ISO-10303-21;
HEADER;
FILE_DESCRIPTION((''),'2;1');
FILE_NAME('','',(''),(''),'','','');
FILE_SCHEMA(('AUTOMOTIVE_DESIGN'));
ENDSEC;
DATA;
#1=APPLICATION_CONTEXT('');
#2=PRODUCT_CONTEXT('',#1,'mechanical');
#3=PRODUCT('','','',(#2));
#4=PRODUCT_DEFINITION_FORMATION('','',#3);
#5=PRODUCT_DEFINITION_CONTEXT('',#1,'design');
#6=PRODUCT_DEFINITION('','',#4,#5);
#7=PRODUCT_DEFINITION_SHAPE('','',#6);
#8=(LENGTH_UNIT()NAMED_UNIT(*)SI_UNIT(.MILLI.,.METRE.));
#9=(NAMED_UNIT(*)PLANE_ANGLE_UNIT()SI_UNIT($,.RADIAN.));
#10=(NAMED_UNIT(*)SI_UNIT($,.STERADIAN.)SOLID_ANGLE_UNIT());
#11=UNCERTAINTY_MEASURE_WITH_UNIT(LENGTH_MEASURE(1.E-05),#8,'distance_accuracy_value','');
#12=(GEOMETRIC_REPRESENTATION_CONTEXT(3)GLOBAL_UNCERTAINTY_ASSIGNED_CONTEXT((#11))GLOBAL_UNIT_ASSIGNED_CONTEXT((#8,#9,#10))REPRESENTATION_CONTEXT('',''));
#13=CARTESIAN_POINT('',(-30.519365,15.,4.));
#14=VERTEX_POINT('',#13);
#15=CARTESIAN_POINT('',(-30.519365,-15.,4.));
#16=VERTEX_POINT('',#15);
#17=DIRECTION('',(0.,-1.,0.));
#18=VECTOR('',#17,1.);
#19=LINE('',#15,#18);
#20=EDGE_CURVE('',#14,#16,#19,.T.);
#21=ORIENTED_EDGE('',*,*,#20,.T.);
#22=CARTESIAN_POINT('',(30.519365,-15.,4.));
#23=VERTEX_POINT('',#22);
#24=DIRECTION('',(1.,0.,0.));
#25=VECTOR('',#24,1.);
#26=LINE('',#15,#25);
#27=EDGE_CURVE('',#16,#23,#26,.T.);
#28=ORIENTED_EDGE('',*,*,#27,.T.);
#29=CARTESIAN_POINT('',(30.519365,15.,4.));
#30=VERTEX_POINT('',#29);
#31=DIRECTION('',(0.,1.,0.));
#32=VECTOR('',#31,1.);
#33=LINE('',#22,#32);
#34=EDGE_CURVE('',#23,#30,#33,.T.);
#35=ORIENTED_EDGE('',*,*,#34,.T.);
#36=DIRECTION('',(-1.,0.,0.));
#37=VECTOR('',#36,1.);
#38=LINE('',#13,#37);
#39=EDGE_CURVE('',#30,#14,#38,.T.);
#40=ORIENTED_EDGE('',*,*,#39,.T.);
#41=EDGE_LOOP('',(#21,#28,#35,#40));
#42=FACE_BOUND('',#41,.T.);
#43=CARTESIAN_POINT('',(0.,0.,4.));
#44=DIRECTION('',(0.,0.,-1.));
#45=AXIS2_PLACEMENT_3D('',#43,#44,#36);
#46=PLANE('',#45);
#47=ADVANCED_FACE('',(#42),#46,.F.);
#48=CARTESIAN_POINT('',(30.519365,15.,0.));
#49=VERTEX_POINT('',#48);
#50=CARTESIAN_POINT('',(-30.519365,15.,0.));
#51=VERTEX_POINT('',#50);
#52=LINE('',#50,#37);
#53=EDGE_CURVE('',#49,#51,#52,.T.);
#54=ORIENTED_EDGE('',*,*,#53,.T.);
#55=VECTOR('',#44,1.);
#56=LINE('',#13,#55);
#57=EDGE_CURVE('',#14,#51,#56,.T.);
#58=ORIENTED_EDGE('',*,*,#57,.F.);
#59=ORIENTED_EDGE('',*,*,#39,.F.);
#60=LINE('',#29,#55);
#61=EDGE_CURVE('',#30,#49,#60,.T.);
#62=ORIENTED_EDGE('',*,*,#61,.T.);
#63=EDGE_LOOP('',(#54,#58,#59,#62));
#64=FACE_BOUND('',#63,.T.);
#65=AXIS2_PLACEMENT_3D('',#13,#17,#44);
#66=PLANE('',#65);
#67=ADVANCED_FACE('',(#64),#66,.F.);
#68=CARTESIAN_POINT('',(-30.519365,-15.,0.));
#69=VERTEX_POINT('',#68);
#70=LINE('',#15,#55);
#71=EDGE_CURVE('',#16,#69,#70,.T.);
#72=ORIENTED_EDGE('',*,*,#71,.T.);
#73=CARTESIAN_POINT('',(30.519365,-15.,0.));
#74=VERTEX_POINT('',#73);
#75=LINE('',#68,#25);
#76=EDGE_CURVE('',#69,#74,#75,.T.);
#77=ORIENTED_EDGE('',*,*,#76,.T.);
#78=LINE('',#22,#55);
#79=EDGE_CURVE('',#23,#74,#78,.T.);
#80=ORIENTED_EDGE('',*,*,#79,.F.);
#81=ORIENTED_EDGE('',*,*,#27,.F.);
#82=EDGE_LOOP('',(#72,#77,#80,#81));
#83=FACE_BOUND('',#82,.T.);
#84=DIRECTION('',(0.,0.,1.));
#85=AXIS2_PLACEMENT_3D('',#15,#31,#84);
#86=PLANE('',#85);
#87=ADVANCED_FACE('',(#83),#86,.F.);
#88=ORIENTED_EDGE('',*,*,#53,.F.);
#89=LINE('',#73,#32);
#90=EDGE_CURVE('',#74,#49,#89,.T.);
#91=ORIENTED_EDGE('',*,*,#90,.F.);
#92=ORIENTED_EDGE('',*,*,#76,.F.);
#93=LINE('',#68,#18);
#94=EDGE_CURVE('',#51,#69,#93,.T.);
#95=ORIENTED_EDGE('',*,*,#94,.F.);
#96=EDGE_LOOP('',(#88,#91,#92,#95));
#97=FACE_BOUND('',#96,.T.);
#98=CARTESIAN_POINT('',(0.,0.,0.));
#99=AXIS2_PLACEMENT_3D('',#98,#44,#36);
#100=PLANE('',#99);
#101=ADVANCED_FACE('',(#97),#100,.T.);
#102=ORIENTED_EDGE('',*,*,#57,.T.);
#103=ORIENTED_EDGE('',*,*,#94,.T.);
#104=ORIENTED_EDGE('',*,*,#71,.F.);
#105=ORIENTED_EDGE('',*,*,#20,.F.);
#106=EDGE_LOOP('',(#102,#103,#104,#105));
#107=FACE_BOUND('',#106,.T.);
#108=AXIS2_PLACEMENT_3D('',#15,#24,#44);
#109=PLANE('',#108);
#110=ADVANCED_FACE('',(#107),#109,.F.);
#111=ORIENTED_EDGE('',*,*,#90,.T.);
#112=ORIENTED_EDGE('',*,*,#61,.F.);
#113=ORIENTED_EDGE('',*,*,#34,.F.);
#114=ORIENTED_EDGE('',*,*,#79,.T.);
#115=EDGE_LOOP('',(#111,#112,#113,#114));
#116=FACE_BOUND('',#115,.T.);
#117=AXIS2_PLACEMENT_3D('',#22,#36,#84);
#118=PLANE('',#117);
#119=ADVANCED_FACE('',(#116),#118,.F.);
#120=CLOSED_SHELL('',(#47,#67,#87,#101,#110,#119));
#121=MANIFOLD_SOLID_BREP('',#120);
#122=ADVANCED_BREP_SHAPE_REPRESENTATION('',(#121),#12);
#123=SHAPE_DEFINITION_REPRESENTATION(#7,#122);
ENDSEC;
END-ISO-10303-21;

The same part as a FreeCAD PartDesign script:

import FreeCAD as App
import Part
import Sketcher

V = App.Vector

doc = App.newDocument("Part")
params = doc.addObject("Spreadsheet::Sheet", "Params")
for row, (alias, value) in enumerate([
    ("sketch1_height", "30 mm"),
    ("pad1_length", "4 mm"),
], start=1):
    params.set(f"A{row}", alias)
    params.set(f"B{row}", "=" + value)
    params.setAlias(f"B{row}", alias)

body = doc.addObject("PartDesign::Body", "Body")

# Sketch on XY plane
sketch1 = body.newObject("Sketcher::SketchObject", "Sketch")
sketch1.AttachmentSupport = (doc.getObject("XY_Plane"), [""])
sketch1.MapMode = "FlatFace"
sketch1.addGeometry([
    Part.LineSegment(V(-31, 15, 0), V(-31, -15, 0)),
    Part.LineSegment(V(-31, -15, 0), V(31, -15, 0)),
    Part.LineSegment(V(31, -15, 0), V(31, 15, 0)),
    Part.LineSegment(V(31, 15, 0), V(-31, 15, 0)),
], False)
sketch1.addConstraint([
    Sketcher.Constraint("Coincident", 0, 2, 1, 1),
    Sketcher.Constraint("Coincident", 1, 2, 2, 1),
    Sketcher.Constraint("Coincident", 2, 2, 3, 1),
    Sketcher.Constraint("Coincident", 3, 2, 0, 1),
    Sketcher.Constraint("Vertical", 0),
    Sketcher.Constraint("Horizontal", 1),
    Sketcher.Constraint("Vertical", 2),
    Sketcher.Constraint("Horizontal", 3),
    Sketcher.Constraint("Symmetric", 0, 2, 2, 2, -1, 1),
    Sketcher.Constraint("DistanceY", 0, 2, 0, 1, 30.0),
    Sketcher.Constraint("DistanceX", 1, 1, 1, 2, 61.038729),
])
sketch1.setExpression("Constraints[9]", "Params.sketch1_height")
pad1 = body.newObject("PartDesign::Pad", "Pad")
pad1.Profile = sketch1
pad1.setExpression("Length", "Params.pad1_length")

doc.recompute()
